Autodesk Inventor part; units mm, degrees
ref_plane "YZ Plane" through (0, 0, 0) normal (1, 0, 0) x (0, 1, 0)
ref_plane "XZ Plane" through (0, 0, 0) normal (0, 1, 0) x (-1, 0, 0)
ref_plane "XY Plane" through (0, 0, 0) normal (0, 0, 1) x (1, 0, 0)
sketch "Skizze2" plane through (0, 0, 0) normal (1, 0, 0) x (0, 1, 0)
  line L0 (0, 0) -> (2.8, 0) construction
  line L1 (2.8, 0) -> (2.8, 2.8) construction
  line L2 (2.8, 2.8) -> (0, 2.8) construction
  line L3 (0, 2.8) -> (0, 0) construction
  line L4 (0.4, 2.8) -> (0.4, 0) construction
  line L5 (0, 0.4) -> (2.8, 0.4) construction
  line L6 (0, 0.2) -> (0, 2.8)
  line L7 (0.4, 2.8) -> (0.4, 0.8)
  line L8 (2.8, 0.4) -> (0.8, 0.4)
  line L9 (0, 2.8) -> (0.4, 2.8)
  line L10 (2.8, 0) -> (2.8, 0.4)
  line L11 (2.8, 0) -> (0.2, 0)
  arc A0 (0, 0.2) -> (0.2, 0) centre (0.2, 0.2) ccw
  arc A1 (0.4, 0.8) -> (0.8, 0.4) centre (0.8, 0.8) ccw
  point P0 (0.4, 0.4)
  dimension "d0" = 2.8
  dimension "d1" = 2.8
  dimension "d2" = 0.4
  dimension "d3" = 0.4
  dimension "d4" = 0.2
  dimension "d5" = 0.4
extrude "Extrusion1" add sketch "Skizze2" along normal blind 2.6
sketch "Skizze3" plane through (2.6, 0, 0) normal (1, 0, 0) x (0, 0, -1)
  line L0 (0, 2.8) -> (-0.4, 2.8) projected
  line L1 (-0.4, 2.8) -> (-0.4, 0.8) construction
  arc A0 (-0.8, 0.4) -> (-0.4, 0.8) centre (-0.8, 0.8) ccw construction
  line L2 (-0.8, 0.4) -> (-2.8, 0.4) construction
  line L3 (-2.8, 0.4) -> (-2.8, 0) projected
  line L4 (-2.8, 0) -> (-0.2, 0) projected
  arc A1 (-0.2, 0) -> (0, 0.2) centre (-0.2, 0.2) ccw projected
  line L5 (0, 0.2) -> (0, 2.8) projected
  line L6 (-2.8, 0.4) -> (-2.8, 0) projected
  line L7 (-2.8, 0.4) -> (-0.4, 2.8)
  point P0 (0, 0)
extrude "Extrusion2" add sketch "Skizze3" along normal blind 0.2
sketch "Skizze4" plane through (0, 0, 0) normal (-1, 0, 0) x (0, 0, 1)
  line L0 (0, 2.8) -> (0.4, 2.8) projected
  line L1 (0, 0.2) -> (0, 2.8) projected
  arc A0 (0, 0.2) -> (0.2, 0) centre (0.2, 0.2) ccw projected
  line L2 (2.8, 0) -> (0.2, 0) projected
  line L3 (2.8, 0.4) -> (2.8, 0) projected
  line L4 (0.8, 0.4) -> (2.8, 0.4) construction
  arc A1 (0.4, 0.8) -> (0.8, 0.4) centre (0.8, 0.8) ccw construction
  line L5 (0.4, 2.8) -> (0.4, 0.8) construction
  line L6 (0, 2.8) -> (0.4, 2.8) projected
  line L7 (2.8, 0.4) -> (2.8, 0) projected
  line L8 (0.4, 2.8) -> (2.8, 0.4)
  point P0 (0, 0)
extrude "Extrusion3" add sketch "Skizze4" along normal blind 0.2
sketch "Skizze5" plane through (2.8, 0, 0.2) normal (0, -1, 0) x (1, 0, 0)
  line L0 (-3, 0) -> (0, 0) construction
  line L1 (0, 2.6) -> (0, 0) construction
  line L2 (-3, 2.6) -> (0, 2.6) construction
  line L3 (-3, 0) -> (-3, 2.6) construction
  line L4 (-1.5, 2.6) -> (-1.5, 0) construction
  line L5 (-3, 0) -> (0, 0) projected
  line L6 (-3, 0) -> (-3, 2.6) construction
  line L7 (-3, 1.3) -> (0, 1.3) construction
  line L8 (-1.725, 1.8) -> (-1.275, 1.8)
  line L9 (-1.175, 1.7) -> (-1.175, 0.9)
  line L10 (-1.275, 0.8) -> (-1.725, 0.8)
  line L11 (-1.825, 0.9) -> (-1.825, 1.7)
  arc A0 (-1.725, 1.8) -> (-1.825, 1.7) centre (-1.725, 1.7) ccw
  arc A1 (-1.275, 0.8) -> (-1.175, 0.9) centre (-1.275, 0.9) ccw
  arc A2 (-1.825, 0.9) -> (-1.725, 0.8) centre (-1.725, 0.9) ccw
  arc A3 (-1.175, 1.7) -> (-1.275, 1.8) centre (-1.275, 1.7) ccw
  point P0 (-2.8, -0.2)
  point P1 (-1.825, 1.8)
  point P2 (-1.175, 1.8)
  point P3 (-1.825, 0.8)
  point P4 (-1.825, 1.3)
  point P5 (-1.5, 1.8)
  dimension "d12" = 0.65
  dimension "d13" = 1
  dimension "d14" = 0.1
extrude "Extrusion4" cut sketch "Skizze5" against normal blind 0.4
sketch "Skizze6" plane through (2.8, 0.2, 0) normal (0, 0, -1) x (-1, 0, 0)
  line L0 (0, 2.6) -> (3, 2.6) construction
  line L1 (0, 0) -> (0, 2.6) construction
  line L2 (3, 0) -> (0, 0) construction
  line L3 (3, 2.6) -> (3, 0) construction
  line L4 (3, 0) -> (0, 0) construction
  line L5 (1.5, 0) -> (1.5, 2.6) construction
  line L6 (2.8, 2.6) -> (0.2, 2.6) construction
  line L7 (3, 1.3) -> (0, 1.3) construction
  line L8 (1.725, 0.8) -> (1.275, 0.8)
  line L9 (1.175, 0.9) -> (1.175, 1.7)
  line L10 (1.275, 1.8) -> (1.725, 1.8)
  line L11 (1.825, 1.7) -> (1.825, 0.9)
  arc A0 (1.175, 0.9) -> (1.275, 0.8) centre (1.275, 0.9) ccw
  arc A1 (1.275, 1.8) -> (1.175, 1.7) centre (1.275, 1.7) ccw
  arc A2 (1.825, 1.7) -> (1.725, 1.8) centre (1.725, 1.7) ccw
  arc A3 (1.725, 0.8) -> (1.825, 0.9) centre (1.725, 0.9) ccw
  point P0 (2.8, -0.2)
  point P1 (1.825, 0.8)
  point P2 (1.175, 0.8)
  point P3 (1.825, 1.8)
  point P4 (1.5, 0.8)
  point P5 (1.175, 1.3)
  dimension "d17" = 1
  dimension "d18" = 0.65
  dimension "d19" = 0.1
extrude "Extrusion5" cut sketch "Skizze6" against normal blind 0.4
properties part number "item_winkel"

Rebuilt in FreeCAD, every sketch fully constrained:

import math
import FreeCAD as App
import Part
import Sketcher
from FreeCAD import Vector
Q = App.Units.Quantity

doc = App.newDocument("Part")
body = doc.addObject("PartDesign::Body", "Body")

# Sketch on YZ plane
sketch1 = doc.addObject("Sketcher::SketchObject", "Sketch")
body.addObject(sketch1)
sketch1.AttachmentSupport = (doc.YZ_Plane, [""])
sketch1.MapMode = "FlatFace"
sketch1.addGeometry(Part.LineSegment(Vector(0, 2.8, 0), Vector(0, 0.2, 0)), False)
sketch1.addGeometry(Part.ArcOfCircle(Part.Circle(Vector(0.2, 0.2, 0), Vector(0, 0, 1), 0.2), math.radians(180), math.radians(270)), False)
sketch1.addGeometry(Part.LineSegment(Vector(0.2, 0, 0), Vector(2.8, 0, 0)), False)
sketch1.addGeometry(Part.LineSegment(Vector(2.8, 0, 0), Vector(2.8, 0.4, 0)), False)
sketch1.addGeometry(Part.LineSegment(Vector(2.8, 0.4, 0), Vector(0.8, 0.4, 0)), False)
sketch1.addGeometry(Part.ArcOfCircle(Part.Circle(Vector(0.8, 0.8, 0), Vector(0, 0, 1), 0.4), math.radians(180), math.radians(270)), False)
sketch1.addGeometry(Part.LineSegment(Vector(0.4, 0.8, 0), Vector(0.4, 2.8, 0)), False)
sketch1.addGeometry(Part.LineSegment(Vector(0.4, 2.8, 0), Vector(0, 2.8, 0)), False)
sketch1.addConstraint(Sketcher.Constraint("Tangent", 0, 2, 1, 1))
sketch1.addConstraint(Sketcher.Constraint("Tangent", 1, 2, 2, 1))
sketch1.addConstraint(Sketcher.Constraint("Coincident", 2, 2, 3, 1))
sketch1.addConstraint(Sketcher.Constraint("Coincident", 3, 2, 4, 1))
sketch1.addConstraint(Sketcher.Constraint("Tangent", 4, 2, 5, 2))
sketch1.addConstraint(Sketcher.Constraint("Tangent", 5, 1, 6, 1))
sketch1.addConstraint(Sketcher.Constraint("Coincident", 6, 2, 7, 1))
sketch1.addConstraint(Sketcher.Constraint("Coincident", 7, 2, 0, 1))
sketch1.addConstraint(Sketcher.Constraint("Vertical", 0))
sketch1.addConstraint(Sketcher.Constraint("Horizontal", 2))
sketch1.addConstraint(Sketcher.Constraint("Vertical", 3))
sketch1.addConstraint(Sketcher.Constraint("Horizontal", 4))
sketch1.addConstraint(Sketcher.Constraint("Vertical", 6))
sketch1.addConstraint(Sketcher.Constraint("Horizontal", 7))
sketch1.addConstraint(Sketcher.Constraint("PointOnObject", 0, 2, -2))
sketch1.addConstraint(Sketcher.Constraint("PointOnObject", 1, 2, -1))
sketch1.addConstraint(Sketcher.Constraint("Equal", 2, 0))
sketch1.addConstraint(Sketcher.Constraint("Equal", 7, 3))
sketch1.addConstraint(Sketcher.Constraint("Radius", 1, Q("0.2 mm")))
sketch1.addConstraint(Sketcher.Constraint("Radius", 5, Q("0.4 mm")))
sketch1.addConstraint(Sketcher.Constraint("DistanceX", 7, 2, 7, 1, Q("0.4 mm")))
sketch1.addConstraint(Sketcher.Constraint("DistanceX", -1, 1, 2, 2, Q("2.8 mm")))
pad1 = doc.addObject("PartDesign::Pad", "Pad")
body.addObject(pad1)
pad1.Profile = sketch1
pad1.Length = 2.6

# Sketch on YZ plane
sketch2 = doc.addObject("Sketcher::SketchObject", "Sketch001")
body.addObject(sketch2)
sketch2.AttachmentSupport = (doc.YZ_Plane, [""])
sketch2.MapMode = "FlatFace"
sketch2.AttachmentOffset = App.Placement(Vector(0, 0, 2.6), App.Rotation())
sketch2.addGeometry(Part.LineSegment(Vector(0.2, 0, 0), Vector(2.8, 0, 0)), False)
sketch2.addGeometry(Part.LineSegment(Vector(2.8, 0, 0), Vector(2.8, 0.4, 0)), False)
sketch2.addGeometry(Part.LineSegment(Vector(2.8, 0.4, 0), Vector(0.4, 2.8, 0)), False)
sketch2.addGeometry(Part.LineSegment(Vector(0.4, 2.8, 0), Vector(0, 2.8, 0)), False)
sketch2.addGeometry(Part.LineSegment(Vector(0, 2.8, 0), Vector(0, 0.2, 0)), False)
sketch2.addGeometry(Part.ArcOfCircle(Part.Circle(Vector(0.2, 0.2, 0), Vector(0, 0, 1), 0.2), math.radians(180), math.radians(270)), False)
sketch2.addConstraint(Sketcher.Constraint("Coincident", 0, 2, 1, 1))
sketch2.addConstraint(Sketcher.Constraint("Coincident", 1, 2, 2, 1))
sketch2.addConstraint(Sketcher.Constraint("Coincident", 2, 2, 3, 1))
sketch2.addConstraint(Sketcher.Constraint("Coincident", 3, 2, 4, 1))
sketch2.addConstraint(Sketcher.Constraint("Tangent", 4, 2, 5, 1))
sketch2.addConstraint(Sketcher.Constraint("Tangent", 5, 2, 0, 1))
sketch2.addConstraint(Sketcher.Constraint("Horizontal", 0))
sketch2.addConstraint(Sketcher.Constraint("Vertical", 1))
sketch2.addConstraint(Sketcher.Constraint("Horizontal", 3))
sketch2.addConstraint(Sketcher.Constraint("Vertical", 4))
sketch2.addConstraint(Sketcher.Constraint("PointOnObject", 0, 2, -1))
sketch2.addConstraint(Sketcher.Constraint("PointOnObject", 3, 2, -2))
sketch2.addConstraint(Sketcher.Constraint("Equal", 3, 1))
sketch2.addConstraint(Sketcher.Constraint("Equal", 0, 4))
sketch2.addConstraint(Sketcher.Constraint("Radius", 5, Q("0.2 mm")))
sketch2.addConstraint(Sketcher.Constraint("DistanceX", 0, 1, 0, 2, Q("2.6 mm")))
sketch2.addConstraint(Sketcher.Constraint("DistanceX", 3, 2, 3, 1, Q("0.4 mm")))
pad2 = doc.addObject("PartDesign::Pad", "Pad001")
body.addObject(pad2)
pad2.Profile = sketch2
pad2.Length = 0.2

# Sketch on YZ plane
sketch3 = doc.addObject("Sketcher::SketchObject", "Sketch002")
body.addObject(sketch3)
sketch3.AttachmentSupport = (doc.YZ_Plane, [""])
sketch3.MapMode = "FlatFace"
sketch3.addGeometry(Part.LineSegment(Vector(2.8, 0.4, 0), Vector(2.8, 0, 0)), False)
sketch3.addGeometry(Part.LineSegment(Vector(2.8, 0, 0), Vector(0.2, 0, 0)), False)
sketch3.addGeometry(Part.ArcOfCircle(Part.Circle(Vector(0.2, 0.2, 0), Vector(0, 0, 1), 0.2), math.radians(180), math.radians(270)), False)
sketch3.addGeometry(Part.LineSegment(Vector(0, 0.2, 0), Vector(0, 2.8, 0)), False)
sketch3.addGeometry(Part.LineSegment(Vector(0, 2.8, 0), Vector(0.4, 2.8, 0)), False)
sketch3.addGeometry(Part.LineSegment(Vector(0.4, 2.8, 0), Vector(2.8, 0.4, 0)), False)
sketch3.addConstraint(Sketcher.Constraint("Coincident", 0, 2, 1, 1))
sketch3.addConstraint(Sketcher.Constraint("Tangent", 1, 2, 2, 2))
sketch3.addConstraint(Sketcher.Constraint("Tangent", 2, 1, 3, 1))
sketch3.addConstraint(Sketcher.Constraint("Coincident", 3, 2, 4, 1))
sketch3.addConstraint(Sketcher.Constraint("Coincident", 4, 2, 5, 1))
sketch3.addConstraint(Sketcher.Constraint("Coincident", 5, 2, 0, 1))
sketch3.addConstraint(Sketcher.Constraint("Vertical", 0))
sketch3.addConstraint(Sketcher.Constraint("Horizontal", 1))
sketch3.addConstraint(Sketcher.Constraint("Vertical", 3))
sketch3.addConstraint(Sketcher.Constraint("Horizontal", 4))
sketch3.addConstraint(Sketcher.Constraint("PointOnObject", 0, 2, -1))
sketch3.addConstraint(Sketcher.Constraint("PointOnObject", 2, 1, -2))
sketch3.addConstraint(Sketcher.Constraint("Equal", 4, 0))
sketch3.addConstraint(Sketcher.Constraint("Equal", 1, 3))
sketch3.addConstraint(Sketcher.Constraint("Radius", 2, Q("0.2 mm")))
sketch3.addConstraint(Sketcher.Constraint("DistanceX", 1, 2, 1, 1, Q("2.6 mm")))
sketch3.addConstraint(Sketcher.Constraint("DistanceX", 4, 1, 4, 2, Q("0.4 mm")))
pad3 = doc.addObject("PartDesign::Pad", "Pad002")
body.addObject(pad3)
pad3.Profile = sketch3
pad3.Length = 0.2
pad3.Reversed = True

# Sketch on XZ plane
sketch4 = doc.addObject("Sketcher::SketchObject", "Sketch003")
body.addObject(sketch4)
sketch4.AttachmentSupport = (doc.XZ_Plane, [""])
sketch4.MapMode = "FlatFace"
sketch4.addGeometry(Part.LineSegment(Vector(1.52, 2, 0), Vector(1.07, 2, 0)), False)
sketch4.addGeometry(Part.ArcOfCircle(Part.Circle(Vector(1.07, 1.9, 0), Vector(0, 0, 1), 0.1), math.radians(90), math.radians(180)), False)
sketch4.addGeometry(Part.LineSegment(Vector(0.97, 1.9, 0), Vector(0.97, 1.1, 0)), False)
sketch4.addGeometry(Part.ArcOfCircle(Part.Circle(Vector(1.07, 1.1, 0), Vector(0, 0, 1), 0.1), math.radians(180), math.radians(270)), False)
sketch4.addGeometry(Part.LineSegment(Vector(1.07, 1, 0), Vector(1.52, 1, 0)), False)
sketch4.addGeometry(Part.ArcOfCircle(Part.Circle(Vector(1.52, 1.1, 0), Vector(0, 0, 1), 0.1), math.radians(-90), math.radians(0)), False)
sketch4.addGeometry(Part.LineSegment(Vector(1.62, 1.1, 0), Vector(1.62, 1.9, 0)), False)
sketch4.addGeometry(Part.ArcOfCircle(Part.Circle(Vector(1.52, 1.9, 0), Vector(0, 0, 1), 0.1), math.radians(0), math.radians(90)), False)
sketch4.addConstraint(Sketcher.Constraint("Tangent", 0, 2, 1, 1))
sketch4.addConstraint(Sketcher.Constraint("Tangent", 1, 2, 2, 1))
sketch4.addConstraint(Sketcher.Constraint("Tangent", 2, 2, 3, 1))
sketch4.addConstraint(Sketcher.Constraint("Tangent", 3, 2, 4, 1))
sketch4.addConstraint(Sketcher.Constraint("Tangent", 4, 2, 5, 1))
sketch4.addConstraint(Sketcher.Constraint("Tangent", 5, 2, 6, 1))
sketch4.addConstraint(Sketcher.Constraint("Tangent", 6, 2, 7, 1))
sketch4.addConstraint(Sketcher.Constraint("Tangent", 7, 2, 0, 1))
sketch4.addConstraint(Sketcher.Constraint("Horizontal", 0))
sketch4.addConstraint(Sketcher.Constraint("Vertical", 2))
sketch4.addConstraint(Sketcher.Constraint("Horizontal", 4))
sketch4.addConstraint(Sketcher.Constraint("Vertical", 6))
sketch4.addConstraint(Sketcher.Constraint("Equal", 1, 3))
sketch4.addConstraint(Sketcher.Constraint("Equal", 3, 5))
sketch4.addConstraint(Sketcher.Constraint("Equal", 5, 7))
sketch4.addConstraint(Sketcher.Constraint("Radius", 1, Q("0.1 mm")))
sketch4.addConstraint(Sketcher.Constraint("DistanceY", -1, 1, 3, 2, Q("1 mm")))
sketch4.addConstraint(Sketcher.Constraint("DistanceX", 2, 2, 5, 2, Q("0.65 mm")))
sketch4.addConstraint(Sketcher.Constraint("DistanceY", 2, 2, 2, 1, Q("0.8 mm")))
sketch4.addConstraint(Sketcher.Constraint("DistanceX", -1, 1, 1, 3, Q("1.075 mm")))
pocket1 = doc.addObject("PartDesign::Pocket", "Pocket")
body.addObject(pocket1)
pocket1.Profile = sketch4
pocket1.Length = 0.4

# Sketch on XY plane
sketch5 = doc.addObject("Sketcher::SketchObject", "Sketch004")
body.addObject(sketch5)
sketch5.AttachmentSupport = (doc.XY_Plane, [""])
sketch5.MapMode = "FlatFace"
sketch5.addGeometry(Part.LineSegment(Vector(1.52, 1, 0), Vector(1.07, 1, 0)), False)
sketch5.addGeometry(Part.ArcOfCircle(Part.Circle(Vector(1.07, 1.1, 0), Vector(0, 0, 1), 0.1), math.radians(180), math.radians(270)), False)
sketch5.addGeometry(Part.LineSegment(Vector(0.97, 1.1, 0), Vector(0.97, 1.9, 0)), False)
sketch5.addGeometry(Part.ArcOfCircle(Part.Circle(Vector(1.07, 1.9, 0), Vector(0, 0, 1), 0.1), math.radians(90), math.radians(180)), False)
sketch5.addGeometry(Part.LineSegment(Vector(1.07, 2, 0), Vector(1.52, 2, 0)), False)
sketch5.addGeometry(Part.ArcOfCircle(Part.Circle(Vector(1.52, 1.9, 0), Vector(0, 0, 1), 0.1), math.radians(0), math.radians(90)), False)
sketch5.addGeometry(Part.LineSegment(Vector(1.62, 1.9, 0), Vector(1.62, 1.1, 0)), False)
sketch5.addGeometry(Part.ArcOfCircle(Part.Circle(Vector(1.52, 1.1, 0), Vector(0, 0, 1), 0.1), math.radians(-90), math.radians(0)), False)
sketch5.addConstraint(Sketcher.Constraint("Tangent", 0, 2, 1, 2))
sketch5.addConstraint(Sketcher.Constraint("Tangent", 1, 1, 2, 1))
sketch5.addConstraint(Sketcher.Constraint("Tangent", 2, 2, 3, 2))
sketch5.addConstraint(Sketcher.Constraint("Tangent", 3, 1, 4, 1))
sketch5.addConstraint(Sketcher.Constraint("Tangent", 4, 2, 5, 2))
sketch5.addConstraint(Sketcher.Constraint("Tangent", 5, 1, 6, 1))
sketch5.addConstraint(Sketcher.Constraint("Tangent", 6, 2, 7, 2))
sketch5.addConstraint(Sketcher.Constraint("Tangent", 7, 1, 0, 1))
sketch5.addConstraint(Sketcher.Constraint("Horizontal", 0))
sketch5.addConstraint(Sketcher.Constraint("Vertical", 2))
sketch5.addConstraint(Sketcher.Constraint("Horizontal", 4))
sketch5.addConstraint(Sketcher.Constraint("Vertical", 6))
sketch5.addConstraint(Sketcher.Constraint("Equal", 1, 3))
sketch5.addConstraint(Sketcher.Constraint("Equal", 3, 5))
sketch5.addConstraint(Sketcher.Constraint("Equal", 5, 7))
sketch5.addConstraint(Sketcher.Constraint("Radius", 1, Q("0.1 mm")))
sketch5.addConstraint(Sketcher.Constraint("DistanceY", -1, 1, 0, 2, Q("1 mm")))
sketch5.addConstraint(Sketcher.Constraint("DistanceX", 2, 2, 5, 1, Q("0.65 mm")))
sketch5.addConstraint(Sketcher.Constraint("DistanceY", 2, 1, 2, 2, Q("0.8 mm")))
sketch5.addConstraint(Sketcher.Constraint("DistanceX", -1, 1, 1, 3, Q("1.075 mm")))
pocket2 = doc.addObject("PartDesign::Pocket", "Pocket001")
body.addObject(pocket2)
pocket2.Profile = sketch5
pocket2.Length = 0.4
pocket2.Reversed = True

doc.recompute()
